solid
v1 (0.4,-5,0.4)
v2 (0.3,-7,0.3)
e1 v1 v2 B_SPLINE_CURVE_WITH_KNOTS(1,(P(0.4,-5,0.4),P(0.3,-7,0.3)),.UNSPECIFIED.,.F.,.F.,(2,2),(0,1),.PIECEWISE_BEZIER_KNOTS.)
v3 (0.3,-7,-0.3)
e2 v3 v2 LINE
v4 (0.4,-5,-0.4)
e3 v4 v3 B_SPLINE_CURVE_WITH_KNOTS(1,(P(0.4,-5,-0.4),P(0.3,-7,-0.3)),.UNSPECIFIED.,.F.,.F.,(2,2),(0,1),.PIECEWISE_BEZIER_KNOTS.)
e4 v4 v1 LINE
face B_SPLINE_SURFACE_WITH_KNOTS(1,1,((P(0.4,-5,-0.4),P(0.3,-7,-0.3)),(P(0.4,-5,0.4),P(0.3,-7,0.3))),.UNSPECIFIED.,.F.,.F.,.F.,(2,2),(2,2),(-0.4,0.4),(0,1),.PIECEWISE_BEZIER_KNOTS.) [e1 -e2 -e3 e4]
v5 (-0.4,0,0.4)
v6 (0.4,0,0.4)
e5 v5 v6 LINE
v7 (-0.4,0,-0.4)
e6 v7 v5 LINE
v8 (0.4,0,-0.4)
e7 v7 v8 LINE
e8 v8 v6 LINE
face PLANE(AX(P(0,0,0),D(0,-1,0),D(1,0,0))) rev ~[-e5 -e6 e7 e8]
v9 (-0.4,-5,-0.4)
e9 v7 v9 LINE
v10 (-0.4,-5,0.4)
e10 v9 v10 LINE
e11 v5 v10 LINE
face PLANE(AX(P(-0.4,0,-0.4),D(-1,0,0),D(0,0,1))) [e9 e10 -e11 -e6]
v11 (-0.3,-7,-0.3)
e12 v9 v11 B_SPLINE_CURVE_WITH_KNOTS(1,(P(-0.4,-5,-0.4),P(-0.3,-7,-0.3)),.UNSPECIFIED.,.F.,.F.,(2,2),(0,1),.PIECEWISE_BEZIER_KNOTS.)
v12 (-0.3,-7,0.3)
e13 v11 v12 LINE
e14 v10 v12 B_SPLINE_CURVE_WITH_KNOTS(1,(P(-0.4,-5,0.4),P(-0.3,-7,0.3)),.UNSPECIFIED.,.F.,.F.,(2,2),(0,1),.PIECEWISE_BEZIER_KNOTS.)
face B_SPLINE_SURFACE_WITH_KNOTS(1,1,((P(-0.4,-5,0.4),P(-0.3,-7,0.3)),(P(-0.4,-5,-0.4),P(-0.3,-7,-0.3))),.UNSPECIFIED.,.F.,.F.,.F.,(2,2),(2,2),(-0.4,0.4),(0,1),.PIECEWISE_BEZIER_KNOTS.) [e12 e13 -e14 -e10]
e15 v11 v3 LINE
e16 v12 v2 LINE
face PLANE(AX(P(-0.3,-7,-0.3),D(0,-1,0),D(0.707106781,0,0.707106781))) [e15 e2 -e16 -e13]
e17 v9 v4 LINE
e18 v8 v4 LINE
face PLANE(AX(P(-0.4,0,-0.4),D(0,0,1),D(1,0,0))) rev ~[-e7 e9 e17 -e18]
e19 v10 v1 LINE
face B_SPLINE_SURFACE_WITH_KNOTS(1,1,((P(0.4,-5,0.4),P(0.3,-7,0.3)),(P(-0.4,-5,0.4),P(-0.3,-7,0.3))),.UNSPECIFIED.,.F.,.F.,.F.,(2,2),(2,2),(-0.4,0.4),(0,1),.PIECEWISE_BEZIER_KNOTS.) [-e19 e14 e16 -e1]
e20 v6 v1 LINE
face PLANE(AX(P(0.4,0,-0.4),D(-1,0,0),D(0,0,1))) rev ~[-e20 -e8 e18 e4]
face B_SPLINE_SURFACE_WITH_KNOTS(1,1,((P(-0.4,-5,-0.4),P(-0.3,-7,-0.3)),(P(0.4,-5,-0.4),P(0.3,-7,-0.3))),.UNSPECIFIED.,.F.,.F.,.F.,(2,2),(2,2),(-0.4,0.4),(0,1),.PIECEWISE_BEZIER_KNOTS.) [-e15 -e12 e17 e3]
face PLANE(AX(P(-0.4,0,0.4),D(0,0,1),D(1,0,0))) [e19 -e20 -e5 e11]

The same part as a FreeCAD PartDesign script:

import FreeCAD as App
import Part
import Sketcher
Q = App.Units.Quantity


def add_polygon(sketch, points):
    """Adds a closed chain of lines whose ends are joined by coincident constraints."""
    first, n = sketch.GeometryCount, len(points)
    for a, b in zip(points, points[1:] + points[:1]):
        sketch.addGeometry(Part.LineSegment(App.Vector(*a, 0), App.Vector(*b, 0)), False)
    for i in range(n):
        sketch.addConstraint(Sketcher.Constraint("Coincident", first + i, 2, first + (i + 1) % n, 1))

doc = App.newDocument("Part")
body = doc.addObject("PartDesign::Body", "Body")

sketch1 = doc.addObject("Sketcher::SketchObject", "Sketch")
body.addObject(sketch1)
sketch1.AttachmentSupport = (doc.XZ_Plane, [""])
sketch1.MapMode = "FlatFace"
add_polygon(sketch1, [(-0.4, 0.4), (-0.4, -0.4), (0.4, -0.4), (0.4, 0.4)])
sketch1.addConstraint([
    Sketcher.Constraint("Vertical", 0),
    Sketcher.Constraint("Horizontal", 1),
    Sketcher.Constraint("Vertical", 2),
    Sketcher.Constraint("Horizontal", 3),
    Sketcher.Constraint("Symmetric", 0, 2, 2, 2, -1, 1),
    Sketcher.Constraint("Equal", 3, 0),
    Sketcher.Constraint("DistanceX", 1, 1, 1, 2, Q("0.8 mm")),
])
pad1 = doc.addObject("PartDesign::Pad", "Pad")
body.addObject(pad1)
pad1.Profile = sketch1
pad1.Length = 5

sketch2 = doc.addObject("Sketcher::SketchObject", "Sketch001")
body.addObject(sketch2)
sketch2.AttachmentSupport = (doc.XZ_Plane, [""])
sketch2.MapMode = "FlatFace"
sketch2.AttachmentOffset = App.Placement(App.Vector(0, 0, 5), App.Rotation())
add_polygon(sketch2, [(-0.4, 0.4), (-0.4, -0.4), (0.4, -0.4), (0.4, 0.4)])
sketch2.addConstraint([
    Sketcher.Constraint("Vertical", 0),
    Sketcher.Constraint("Horizontal", 1),
    Sketcher.Constraint("Vertical", 2),
    Sketcher.Constraint("Horizontal", 3),
    Sketcher.Constraint("Symmetric", 0, 2, 2, 2, -1, 1),
    Sketcher.Constraint("Equal", 3, 0),
    Sketcher.Constraint("DistanceX", 1, 1, 1, 2, Q("0.8 mm")),
])

sketch3 = doc.addObject("Sketcher::SketchObject", "Sketch002")
body.addObject(sketch3)
sketch3.AttachmentSupport = (doc.XZ_Plane, [""])
sketch3.MapMode = "FlatFace"
sketch3.AttachmentOffset = App.Placement(App.Vector(0, 0, 7), App.Rotation())
add_polygon(sketch3, [(-0.3, 0.3), (-0.3, -0.3), (0.3, -0.3), (0.3, 0.3)])
sketch3.addConstraint([
    Sketcher.Constraint("Vertical", 0),
    Sketcher.Constraint("Horizontal", 1),
    Sketcher.Constraint("Vertical", 2),
    Sketcher.Constraint("Horizontal", 3),
    Sketcher.Constraint("Symmetric", 0, 2, 2, 2, -1, 1),
    Sketcher.Constraint("Equal", 3, 0),
    Sketcher.Constraint("DistanceX", 1, 1, 1, 2, Q("0.6 mm")),
])

additiveloft = doc.addObject("PartDesign::AdditiveLoft", "AdditiveLoft")
body.addObject(additiveloft)
additiveloft.Profile = sketch2
additiveloft.Sections = [sketch3]

doc.recompute()
